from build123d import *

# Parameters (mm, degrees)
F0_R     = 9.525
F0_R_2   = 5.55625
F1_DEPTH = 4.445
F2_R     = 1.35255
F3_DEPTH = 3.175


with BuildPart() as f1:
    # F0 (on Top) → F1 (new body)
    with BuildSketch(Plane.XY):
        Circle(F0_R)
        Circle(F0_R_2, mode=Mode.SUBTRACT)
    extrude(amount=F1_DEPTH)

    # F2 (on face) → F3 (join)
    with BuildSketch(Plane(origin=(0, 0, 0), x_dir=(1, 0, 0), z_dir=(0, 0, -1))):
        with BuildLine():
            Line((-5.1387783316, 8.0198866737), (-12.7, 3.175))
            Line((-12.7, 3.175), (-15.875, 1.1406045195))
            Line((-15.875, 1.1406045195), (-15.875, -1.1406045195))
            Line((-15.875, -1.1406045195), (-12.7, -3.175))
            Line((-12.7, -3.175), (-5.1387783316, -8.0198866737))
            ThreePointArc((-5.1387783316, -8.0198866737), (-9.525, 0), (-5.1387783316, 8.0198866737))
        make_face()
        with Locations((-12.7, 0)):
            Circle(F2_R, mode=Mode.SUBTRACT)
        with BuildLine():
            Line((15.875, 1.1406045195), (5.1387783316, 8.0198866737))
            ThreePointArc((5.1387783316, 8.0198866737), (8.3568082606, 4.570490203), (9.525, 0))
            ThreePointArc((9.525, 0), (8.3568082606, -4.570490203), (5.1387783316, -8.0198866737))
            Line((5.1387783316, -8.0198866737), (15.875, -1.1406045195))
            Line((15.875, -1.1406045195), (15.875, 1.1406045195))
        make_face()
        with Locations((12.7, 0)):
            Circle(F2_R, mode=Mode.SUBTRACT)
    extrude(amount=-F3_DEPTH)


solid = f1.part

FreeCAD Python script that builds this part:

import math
import FreeCAD as App
import Part
import Sketcher
Q = App.Units.Quantity

doc = App.newDocument("Part")
body = doc.addObject("PartDesign::Body", "Body")

sketch1 = doc.addObject("Sketcher::SketchObject", "Sketch")
body.addObject(sketch1)
sketch1.AttachmentSupport = (doc.XY_Plane, [""])
sketch1.MapMode = "FlatFace"
sketch1.addGeometry(Part.Circle(App.Vector(0, 0, 0), App.Vector(0, 0, 1), 10), False)
sketch1.addGeometry(Part.Circle(App.Vector(0, 0, 0), App.Vector(0, 0, 1), 6), False)
sketch1.addConstraint(Sketcher.Constraint("Coincident", 0, 3, -1, 1))
sketch1.addConstraint(Sketcher.Constraint("Coincident", 1, 3, -1, 1))
sketch1.addConstraint(Sketcher.Constraint("Diameter", 0, Q("0.75 in")))
sketch1.addConstraint(Sketcher.Constraint("Diameter", 1, Q("0.4375 in")))
pad1 = doc.addObject("PartDesign::Pad", "Pad")
body.addObject(pad1)
pad1.Profile = sketch1
pad1.Length = Q("0.175 in")

sketch2 = doc.addObject("Sketcher::SketchObject", "Sketch001")
body.addObject(sketch2)
sketch2.AttachmentSupport = (doc.XY_Plane, [""])
sketch2.MapMode = "FlatFace"
sketch2.addGeometry(Part.LineSegment(App.Vector(-5.1, -8, 0), App.Vector(-12.7, -3.2, 0)), False)
sketch2.addGeometry(Part.LineSegment(App.Vector(-12.7, -3.2, 0), App.Vector(-15.9, -1.1, 0)), False)
sketch2.addGeometry(Part.LineSegment(App.Vector(-15.9, -1.1, 0), App.Vector(-15.9, 1.1, 0)), False)
sketch2.addGeometry(Part.LineSegment(App.Vector(-15.9, 1.1, 0), App.Vector(-12.7, 3.2, 0)), False)
sketch2.addGeometry(Part.LineSegment(App.Vector(-12.7, 3.2, 0), App.Vector(-5.1, 8, 0)), False)
sketch2.addGeometry(Part.ArcOfCircle(Part.Circle(App.Vector(0, 0, 0), App.Vector(0, 0, 1), 9.5), math.radians(123), math.radians(237)), False)
sketch2.addGeometry(Part.Circle(App.Vector(-12.7, 0, 0), App.Vector(0, 0, 1), 1.4), False)
sketch2.addGeometry(Part.LineSegment(App.Vector(15.9, -1.1, 0), App.Vector(5.1, -8, 0)), False)
sketch2.addGeometry(Part.ArcOfCircle(Part.Circle(App.Vector(0, 0, 0), App.Vector(0, 0, 1), 9.5), math.radians(-57), math.radians(0)), False)
sketch2.addGeometry(Part.ArcOfCircle(Part.Circle(App.Vector(0, 0, 0), App.Vector(0, 0, 1), 9.5), math.radians(0), math.radians(57)), False)
sketch2.addGeometry(Part.LineSegment(App.Vector(5.1, 8, 0), App.Vector(15.9, 1.1, 0)), False)
sketch2.addGeometry(Part.LineSegment(App.Vector(15.9, 1.1, 0), App.Vector(15.9, -1.1, 0)), False)
sketch2.addGeometry(Part.Circle(App.Vector(12.7, 0, 0), App.Vector(0, 0, 1), 1.4), False)
sketch2.addConstraint(Sketcher.Constraint("Coincident", 0, 2, 1, 1))
sketch2.addConstraint(Sketcher.Constraint("Coincident", 1, 2, 2, 1))
sketch2.addConstraint(Sketcher.Constraint("Coincident", 2, 2, 3, 1))
sketch2.addConstraint(Sketcher.Constraint("Coincident", 3, 2, 4, 1))
sketch2.addConstraint(Sketcher.Constraint("Tangent", 4, 2, 5, 1))
sketch2.addConstraint(Sketcher.Constraint("Tangent", 5, 2, 0, 1))
sketch2.addConstraint(Sketcher.Constraint("Tangent", 7, 2, 8, 1))
sketch2.addConstraint(Sketcher.Constraint("Tangent", 8, 2, 9, 1))
sketch2.addConstraint(Sketcher.Constraint("Tangent", 9, 2, 10, 1))
sketch2.addConstraint(Sketcher.Constraint("Coincident", 10, 2, 11, 1))
sketch2.addConstraint(Sketcher.Constraint("Coincident", 11, 2, 7, 1))
sketch2.addConstraint(Sketcher.Constraint("Vertical", 2))
sketch2.addConstraint(Sketcher.Constraint("Vertical", 11))
sketch2.addConstraint(Sketcher.Constraint("Coincident", 5, 3, -1, 1))
sketch2.addConstraint(Sketcher.Constraint("Coincident", 8, 3, -1, 1))
sketch2.addConstraint(Sketcher.Constraint("Equal", 5, 8))
sketch2.addConstraint(Sketcher.Constraint("Equal", 8, 9))
sketch2.addConstraint(Sketcher.Constraint("Equal", 6, 12))
sketch2.addConstraint(Sketcher.Constraint("Symmetric", 6, 3, 12, 3, -1, 1))
sketch2.addConstraint(Sketcher.Constraint("Symmetric", 1, 2, 10, 2, -1, 1))
sketch2.addConstraint(Sketcher.Constraint("Symmetric", 0, 2, 3, 2, -1))
sketch2.addConstraint(Sketcher.Constraint("PointOnObject", 6, 3, -1))
sketch2.addConstraint(Sketcher.Constraint("PointOnObject", 8, 2, -1))
sketch2.addConstraint(Sketcher.Constraint("Parallel", 0, 1))
sketch2.addConstraint(Sketcher.Constraint("Parallel", 3, 4))
sketch2.addConstraint(Sketcher.Constraint("Parallel", 4, 7))
sketch2.addConstraint(Sketcher.Constraint("Vertical", 6, 3, 0, 2))
sketch2.addConstraint(Sketcher.Constraint("Radius", 5, Q("0.375 in")))
sketch2.addConstraint(Sketcher.Constraint("DistanceX", 6, 3, 12, 3, Q("1 in")))
sketch2.addConstraint(Sketcher.Constraint("Diameter", 6, Q("0.1065 in")))
sketch2.addConstraint(Sketcher.Constraint("DistanceY", 0, 2, 3, 2, Q("0.25 in")))
sketch2.addConstraint(Sketcher.Constraint("DistanceX", 8, 2, 10, 2, Q("0.25 in")))
pad2 = doc.addObject("PartDesign::Pad", "Pad001")
body.addObject(pad2)
pad2.Profile = sketch2
pad2.Length = Q("0.125 in")

doc.recompute()
